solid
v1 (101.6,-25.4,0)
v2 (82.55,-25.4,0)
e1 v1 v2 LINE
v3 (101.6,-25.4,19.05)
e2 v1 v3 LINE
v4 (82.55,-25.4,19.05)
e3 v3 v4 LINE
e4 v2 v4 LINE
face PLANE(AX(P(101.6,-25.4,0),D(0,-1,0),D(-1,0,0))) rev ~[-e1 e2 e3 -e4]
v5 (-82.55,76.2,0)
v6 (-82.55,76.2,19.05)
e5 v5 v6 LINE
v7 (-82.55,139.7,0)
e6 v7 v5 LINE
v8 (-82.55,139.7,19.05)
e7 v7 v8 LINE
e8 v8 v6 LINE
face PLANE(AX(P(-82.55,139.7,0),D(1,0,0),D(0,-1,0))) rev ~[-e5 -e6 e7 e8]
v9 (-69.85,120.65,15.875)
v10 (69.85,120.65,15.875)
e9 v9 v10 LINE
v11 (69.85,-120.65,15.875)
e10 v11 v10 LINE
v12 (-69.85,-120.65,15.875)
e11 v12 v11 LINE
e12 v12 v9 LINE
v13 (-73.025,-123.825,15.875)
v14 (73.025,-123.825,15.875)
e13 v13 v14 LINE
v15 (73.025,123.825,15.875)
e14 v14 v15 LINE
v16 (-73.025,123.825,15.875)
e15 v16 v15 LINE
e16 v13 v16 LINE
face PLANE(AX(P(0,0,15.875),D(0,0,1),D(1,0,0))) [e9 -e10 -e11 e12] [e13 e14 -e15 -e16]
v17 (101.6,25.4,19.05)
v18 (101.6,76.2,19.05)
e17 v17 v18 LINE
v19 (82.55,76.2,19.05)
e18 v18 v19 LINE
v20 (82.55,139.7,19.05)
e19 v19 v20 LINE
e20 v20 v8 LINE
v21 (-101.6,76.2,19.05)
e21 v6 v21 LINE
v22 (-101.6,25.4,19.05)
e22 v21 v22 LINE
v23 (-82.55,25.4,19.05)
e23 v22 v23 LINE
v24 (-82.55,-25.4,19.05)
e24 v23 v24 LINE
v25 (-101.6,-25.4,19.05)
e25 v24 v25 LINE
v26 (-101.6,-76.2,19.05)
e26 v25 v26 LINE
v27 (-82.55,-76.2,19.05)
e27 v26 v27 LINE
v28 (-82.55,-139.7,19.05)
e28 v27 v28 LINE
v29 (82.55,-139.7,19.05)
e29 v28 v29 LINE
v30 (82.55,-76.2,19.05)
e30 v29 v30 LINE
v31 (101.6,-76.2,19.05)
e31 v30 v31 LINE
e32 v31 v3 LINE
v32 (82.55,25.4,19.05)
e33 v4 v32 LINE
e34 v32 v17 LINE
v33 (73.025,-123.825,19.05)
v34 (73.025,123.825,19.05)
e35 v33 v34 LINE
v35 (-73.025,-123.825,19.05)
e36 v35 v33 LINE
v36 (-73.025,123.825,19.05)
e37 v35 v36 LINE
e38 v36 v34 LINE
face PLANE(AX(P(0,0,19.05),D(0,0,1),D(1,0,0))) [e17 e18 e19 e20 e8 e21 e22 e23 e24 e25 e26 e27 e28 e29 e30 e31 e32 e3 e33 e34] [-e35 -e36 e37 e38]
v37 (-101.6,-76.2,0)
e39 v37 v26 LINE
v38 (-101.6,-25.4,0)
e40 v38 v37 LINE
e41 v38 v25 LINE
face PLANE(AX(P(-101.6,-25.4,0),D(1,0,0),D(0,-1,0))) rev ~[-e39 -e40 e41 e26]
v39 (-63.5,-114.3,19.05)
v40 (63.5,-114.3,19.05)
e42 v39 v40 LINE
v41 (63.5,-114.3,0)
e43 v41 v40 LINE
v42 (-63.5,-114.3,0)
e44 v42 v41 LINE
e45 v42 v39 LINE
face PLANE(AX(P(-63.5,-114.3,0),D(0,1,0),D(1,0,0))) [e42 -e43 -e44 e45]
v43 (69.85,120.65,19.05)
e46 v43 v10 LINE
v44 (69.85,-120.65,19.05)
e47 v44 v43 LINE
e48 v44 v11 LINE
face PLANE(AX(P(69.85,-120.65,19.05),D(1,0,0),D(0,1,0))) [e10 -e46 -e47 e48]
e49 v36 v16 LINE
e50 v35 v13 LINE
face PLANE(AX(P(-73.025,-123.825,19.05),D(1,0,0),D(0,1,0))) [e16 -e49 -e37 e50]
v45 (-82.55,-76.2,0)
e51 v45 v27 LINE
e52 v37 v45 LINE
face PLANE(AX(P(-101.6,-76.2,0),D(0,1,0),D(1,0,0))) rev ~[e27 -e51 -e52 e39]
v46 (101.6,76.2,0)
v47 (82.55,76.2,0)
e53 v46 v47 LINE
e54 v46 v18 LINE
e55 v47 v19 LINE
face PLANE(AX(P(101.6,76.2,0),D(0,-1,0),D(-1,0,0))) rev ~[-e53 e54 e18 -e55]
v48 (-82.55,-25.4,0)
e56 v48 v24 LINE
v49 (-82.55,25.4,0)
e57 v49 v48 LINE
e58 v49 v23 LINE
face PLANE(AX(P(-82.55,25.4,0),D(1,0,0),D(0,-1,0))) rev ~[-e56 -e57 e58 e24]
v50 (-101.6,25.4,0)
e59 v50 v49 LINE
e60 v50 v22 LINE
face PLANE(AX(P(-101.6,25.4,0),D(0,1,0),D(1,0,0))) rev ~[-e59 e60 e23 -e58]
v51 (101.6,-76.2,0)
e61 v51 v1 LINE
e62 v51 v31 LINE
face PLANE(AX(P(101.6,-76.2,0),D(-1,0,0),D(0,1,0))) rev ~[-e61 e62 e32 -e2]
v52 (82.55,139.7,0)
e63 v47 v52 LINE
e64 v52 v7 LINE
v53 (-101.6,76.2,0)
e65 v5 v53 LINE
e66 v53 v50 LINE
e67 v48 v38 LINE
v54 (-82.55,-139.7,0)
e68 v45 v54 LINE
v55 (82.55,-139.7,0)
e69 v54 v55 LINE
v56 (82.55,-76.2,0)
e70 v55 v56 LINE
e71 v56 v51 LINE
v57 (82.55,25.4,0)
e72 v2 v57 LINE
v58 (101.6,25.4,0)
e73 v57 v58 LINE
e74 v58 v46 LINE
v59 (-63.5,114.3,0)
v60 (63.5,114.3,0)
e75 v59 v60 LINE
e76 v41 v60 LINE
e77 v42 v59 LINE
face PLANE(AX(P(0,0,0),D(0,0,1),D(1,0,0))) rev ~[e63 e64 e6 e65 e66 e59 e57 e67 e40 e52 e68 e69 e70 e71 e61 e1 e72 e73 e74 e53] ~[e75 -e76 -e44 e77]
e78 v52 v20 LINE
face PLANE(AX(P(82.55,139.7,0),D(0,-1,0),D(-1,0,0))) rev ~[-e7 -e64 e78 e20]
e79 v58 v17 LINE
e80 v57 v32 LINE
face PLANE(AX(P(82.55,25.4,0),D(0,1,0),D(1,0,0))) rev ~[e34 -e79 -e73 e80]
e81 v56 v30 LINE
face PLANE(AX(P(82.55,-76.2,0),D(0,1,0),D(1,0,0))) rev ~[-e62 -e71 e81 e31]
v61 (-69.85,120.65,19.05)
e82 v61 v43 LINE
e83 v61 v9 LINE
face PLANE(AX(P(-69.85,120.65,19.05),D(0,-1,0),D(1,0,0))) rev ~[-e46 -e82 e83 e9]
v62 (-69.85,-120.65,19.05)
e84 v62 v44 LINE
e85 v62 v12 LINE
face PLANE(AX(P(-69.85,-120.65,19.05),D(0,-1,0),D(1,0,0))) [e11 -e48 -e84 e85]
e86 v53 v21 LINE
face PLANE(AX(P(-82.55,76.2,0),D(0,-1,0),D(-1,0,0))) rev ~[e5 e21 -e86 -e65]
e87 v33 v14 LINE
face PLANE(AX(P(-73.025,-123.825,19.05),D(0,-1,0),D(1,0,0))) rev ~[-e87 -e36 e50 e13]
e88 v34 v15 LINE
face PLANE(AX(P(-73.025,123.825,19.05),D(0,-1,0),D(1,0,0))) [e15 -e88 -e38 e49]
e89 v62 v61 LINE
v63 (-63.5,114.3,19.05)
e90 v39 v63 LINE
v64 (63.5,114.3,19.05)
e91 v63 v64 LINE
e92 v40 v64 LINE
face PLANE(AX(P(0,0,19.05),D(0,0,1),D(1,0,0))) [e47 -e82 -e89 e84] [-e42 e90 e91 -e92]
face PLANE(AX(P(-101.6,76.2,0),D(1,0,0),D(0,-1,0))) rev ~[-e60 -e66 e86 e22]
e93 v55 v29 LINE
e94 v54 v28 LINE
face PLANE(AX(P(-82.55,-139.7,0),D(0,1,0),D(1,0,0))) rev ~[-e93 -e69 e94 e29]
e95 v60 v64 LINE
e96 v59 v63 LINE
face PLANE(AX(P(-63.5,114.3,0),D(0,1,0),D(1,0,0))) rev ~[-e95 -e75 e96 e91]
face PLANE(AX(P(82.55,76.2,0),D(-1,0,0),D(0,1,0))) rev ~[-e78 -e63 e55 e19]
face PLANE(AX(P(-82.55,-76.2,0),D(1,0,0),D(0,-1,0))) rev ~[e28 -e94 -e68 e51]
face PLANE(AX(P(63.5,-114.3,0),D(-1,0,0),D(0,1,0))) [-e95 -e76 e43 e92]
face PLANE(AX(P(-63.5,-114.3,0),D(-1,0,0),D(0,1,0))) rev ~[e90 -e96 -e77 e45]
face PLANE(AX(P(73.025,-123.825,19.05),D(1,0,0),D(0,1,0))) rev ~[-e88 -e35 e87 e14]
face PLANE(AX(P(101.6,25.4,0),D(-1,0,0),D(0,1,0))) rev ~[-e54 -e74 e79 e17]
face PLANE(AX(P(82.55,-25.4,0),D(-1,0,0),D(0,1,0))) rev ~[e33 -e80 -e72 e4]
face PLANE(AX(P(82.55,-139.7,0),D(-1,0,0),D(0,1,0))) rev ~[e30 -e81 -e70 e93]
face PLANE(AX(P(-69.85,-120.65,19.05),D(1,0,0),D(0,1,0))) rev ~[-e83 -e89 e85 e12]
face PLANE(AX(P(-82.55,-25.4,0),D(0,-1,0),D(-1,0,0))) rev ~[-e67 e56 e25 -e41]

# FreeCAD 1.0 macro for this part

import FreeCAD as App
import Part
import Sketcher

V = App.Vector
Q = App.Units.Quantity


def add_polygon(sketch, points):
    """Adds a closed chain of lines whose ends are joined by coincident constraints."""
    first, n = sketch.GeometryCount, len(points)
    for a, b in zip(points, points[1:] + points[:1]):
        sketch.addGeometry(Part.LineSegment(App.Vector(*a, 0), App.Vector(*b, 0)), False)
    for i in range(n):
        sketch.addConstraint(Sketcher.Constraint("Coincident", first + i, 2, first + (i + 1) % n, 1))

doc = App.newDocument("Part")
params = doc.addObject("Spreadsheet::Sheet", "Params")
for row, (alias, value) in enumerate([
    ("sketch1_width", "5 in"),
    ("sketch1_height", "2 in"),
    ("sketch1_height2", "9 in"),
    ("sketch1_width2", "6.5 in"),
    ("sketch1_height3", "2.5 in"),
    ("pad1_length", "0.75 in"),
    ("sketch2_width", "5.5 in"),
    ("sketch2_height", "9.5 in"),
    ("sketch2_width2", "5.75 in"),
    ("sketch2_height2", "9.75 in"),
    ("pocket1_length", "0.125 in"),
], start=1):
    params.set(f"A{row}", alias)
    params.set(f"B{row}", "=" + value)
    params.setAlias(f"B{row}", alias)

body = doc.addObject("PartDesign::Body", "Body")

# Sketch on XY plane
sketch1 = doc.addObject("Sketcher::SketchObject", "Sketch")
body.addObject(sketch1)
sketch1.AttachmentSupport = (doc.XY_Plane, [""])
sketch1.MapMode = "FlatFace"
add_polygon(sketch1, [(83, 140), (-83, 140), (-83, 76), (-102, 76), (-102, 25), (-83, 25), (-83, -25), (-102, -25), (-102, -76), (-83, -76), (-83, -140), (83, -140), (83, -76), (102, -76), (102, -25), (83, -25), (83, 25), (102, 25), (102, 76), (83, 76)])  # lines 0-19
add_polygon(sketch1, [(64, -114), (-64, -114), (-64, 114), (64, 114)])  # lines 20-23
sketch1.addConstraint([
    Sketcher.Constraint("Horizontal", 0),
    Sketcher.Constraint("Vertical", 1),
    Sketcher.Constraint("Horizontal", 2),
    Sketcher.Constraint("Vertical", 3),
    Sketcher.Constraint("Horizontal", 4),
    Sketcher.Constraint("Vertical", 5),
    Sketcher.Constraint("Horizontal", 6),
    Sketcher.Constraint("Vertical", 7),
    Sketcher.Constraint("Horizontal", 8),
    Sketcher.Constraint("Vertical", 9),
    Sketcher.Constraint("Horizontal", 10),
    Sketcher.Constraint("Vertical", 11),
    Sketcher.Constraint("Horizontal", 12),
    Sketcher.Constraint("Vertical", 13),
    Sketcher.Constraint("Horizontal", 14),
    Sketcher.Constraint("Vertical", 15),
    Sketcher.Constraint("Horizontal", 16),
    Sketcher.Constraint("Vertical", 17),
    Sketcher.Constraint("Horizontal", 18),
    Sketcher.Constraint("Vertical", 19),
    Sketcher.Constraint("Horizontal", 20),
    Sketcher.Constraint("Vertical", 21),
    Sketcher.Constraint("Horizontal", 22),
    Sketcher.Constraint("Vertical", 23),
    Sketcher.Constraint("Symmetric", 0, 2, 10, 2, -1, 1),
    Sketcher.Constraint("Symmetric", 2, 2, 12, 2, -1, 1),
    Sketcher.Constraint("Symmetric", 4, 2, 14, 2, -1, 1),
    Sketcher.Constraint("Symmetric", 6, 2, 16, 2, -1, 1),
    Sketcher.Constraint("Symmetric", 8, 2, 18, 2, -1, 1),
    Sketcher.Constraint("Symmetric", 20, 2, 22, 2, -1, 1),
    Sketcher.Constraint("Symmetric", 8, 2, 11, 2, -2),
    Sketcher.Constraint("Symmetric", 6, 2, 13, 2, -2),
    Sketcher.Constraint("Vertical", 1, 2, 4, 2),
    Sketcher.Constraint("Equal", 3, 5),
    Sketcher.Constraint("DistanceX", 20, 2, 20, 1, Q("5 in")),
    Sketcher.Constraint("DistanceY", 3, 2, 3, 1, Q("2 in")),
    Sketcher.Constraint("DistanceY", 21, 1, 21, 2, Q("9 in")),
    Sketcher.Constraint("DistanceX", 0, 2, 0, 1, Q("6.5 in")),
    Sketcher.Constraint("DistanceY", 1, 2, 1, 1, Q("2.5 in")),
    Sketcher.Constraint("DistanceX", 2, 2, -1, 1, Q("4 in")),
])
sketch1.setExpression("Constraints[58]", "Params.sketch1_width")
sketch1.setExpression("Constraints[59]", "Params.sketch1_height")
sketch1.setExpression("Constraints[60]", "Params.sketch1_height2")
sketch1.setExpression("Constraints[61]", "Params.sketch1_width2")
sketch1.setExpression("Constraints[62]", "Params.sketch1_height3")
pad1 = doc.addObject("PartDesign::Pad", "Pad")
body.addObject(pad1)
pad1.Profile = sketch1
pad1.setExpression("Length", "Params.pad1_length")

# Sketch on XY plane
sketch2 = doc.addObject("Sketcher::SketchObject", "Sketch001")
body.addObject(sketch2)
sketch2.AttachmentSupport = (doc.XY_Plane, [""])
sketch2.MapMode = "FlatFace"
sketch2.AttachmentOffset = App.Placement(V(0, 0, 0.75 * 25.4), App.Rotation())
add_polygon(sketch2, [(-73, 124), (-73, -124), (73, -124), (73, 124)])  # lines 0-3
add_polygon(sketch2, [(70, -121), (-70, -121), (-70, 121), (70, 121)])  # lines 4-7
sketch2.addConstraint([
    Sketcher.Constraint("Vertical", 0),
    Sketcher.Constraint("Horizontal", 1),
    Sketcher.Constraint("Vertical", 2),
    Sketcher.Constraint("Horizontal", 3),
    Sketcher.Constraint("Horizontal", 4),
    Sketcher.Constraint("Vertical", 5),
    Sketcher.Constraint("Horizontal", 6),
    Sketcher.Constraint("Vertical", 7),
    Sketcher.Constraint("Symmetric", 0, 2, 2, 2, -1, 1),
    Sketcher.Constraint("Symmetric", 4, 2, 6, 2, -1, 1),
    Sketcher.Constraint("DistanceX", 4, 2, 4, 1, Q("5.5 in")),
    Sketcher.Constraint("DistanceY", 5, 1, 5, 2, Q("9.5 in")),
    Sketcher.Constraint("DistanceX", 1, 1, 1, 2, Q("5.75 in")),
    Sketcher.Constraint("DistanceY", 0, 2, 0, 1, Q("9.75 in")),
])
sketch2.setExpression("Constraints[18]", "Params.sketch2_width")
sketch2.setExpression("Constraints[19]", "Params.sketch2_height")
sketch2.setExpression("Constraints[20]", "Params.sketch2_width2")
sketch2.setExpression("Constraints[21]", "Params.sketch2_height2")
pocket1 = doc.addObject("PartDesign::Pocket", "Pocket")
body.addObject(pocket1)
pocket1.Profile = sketch2
pocket1.setExpression("Length", "Params.pocket1_length")

doc.recompute()
